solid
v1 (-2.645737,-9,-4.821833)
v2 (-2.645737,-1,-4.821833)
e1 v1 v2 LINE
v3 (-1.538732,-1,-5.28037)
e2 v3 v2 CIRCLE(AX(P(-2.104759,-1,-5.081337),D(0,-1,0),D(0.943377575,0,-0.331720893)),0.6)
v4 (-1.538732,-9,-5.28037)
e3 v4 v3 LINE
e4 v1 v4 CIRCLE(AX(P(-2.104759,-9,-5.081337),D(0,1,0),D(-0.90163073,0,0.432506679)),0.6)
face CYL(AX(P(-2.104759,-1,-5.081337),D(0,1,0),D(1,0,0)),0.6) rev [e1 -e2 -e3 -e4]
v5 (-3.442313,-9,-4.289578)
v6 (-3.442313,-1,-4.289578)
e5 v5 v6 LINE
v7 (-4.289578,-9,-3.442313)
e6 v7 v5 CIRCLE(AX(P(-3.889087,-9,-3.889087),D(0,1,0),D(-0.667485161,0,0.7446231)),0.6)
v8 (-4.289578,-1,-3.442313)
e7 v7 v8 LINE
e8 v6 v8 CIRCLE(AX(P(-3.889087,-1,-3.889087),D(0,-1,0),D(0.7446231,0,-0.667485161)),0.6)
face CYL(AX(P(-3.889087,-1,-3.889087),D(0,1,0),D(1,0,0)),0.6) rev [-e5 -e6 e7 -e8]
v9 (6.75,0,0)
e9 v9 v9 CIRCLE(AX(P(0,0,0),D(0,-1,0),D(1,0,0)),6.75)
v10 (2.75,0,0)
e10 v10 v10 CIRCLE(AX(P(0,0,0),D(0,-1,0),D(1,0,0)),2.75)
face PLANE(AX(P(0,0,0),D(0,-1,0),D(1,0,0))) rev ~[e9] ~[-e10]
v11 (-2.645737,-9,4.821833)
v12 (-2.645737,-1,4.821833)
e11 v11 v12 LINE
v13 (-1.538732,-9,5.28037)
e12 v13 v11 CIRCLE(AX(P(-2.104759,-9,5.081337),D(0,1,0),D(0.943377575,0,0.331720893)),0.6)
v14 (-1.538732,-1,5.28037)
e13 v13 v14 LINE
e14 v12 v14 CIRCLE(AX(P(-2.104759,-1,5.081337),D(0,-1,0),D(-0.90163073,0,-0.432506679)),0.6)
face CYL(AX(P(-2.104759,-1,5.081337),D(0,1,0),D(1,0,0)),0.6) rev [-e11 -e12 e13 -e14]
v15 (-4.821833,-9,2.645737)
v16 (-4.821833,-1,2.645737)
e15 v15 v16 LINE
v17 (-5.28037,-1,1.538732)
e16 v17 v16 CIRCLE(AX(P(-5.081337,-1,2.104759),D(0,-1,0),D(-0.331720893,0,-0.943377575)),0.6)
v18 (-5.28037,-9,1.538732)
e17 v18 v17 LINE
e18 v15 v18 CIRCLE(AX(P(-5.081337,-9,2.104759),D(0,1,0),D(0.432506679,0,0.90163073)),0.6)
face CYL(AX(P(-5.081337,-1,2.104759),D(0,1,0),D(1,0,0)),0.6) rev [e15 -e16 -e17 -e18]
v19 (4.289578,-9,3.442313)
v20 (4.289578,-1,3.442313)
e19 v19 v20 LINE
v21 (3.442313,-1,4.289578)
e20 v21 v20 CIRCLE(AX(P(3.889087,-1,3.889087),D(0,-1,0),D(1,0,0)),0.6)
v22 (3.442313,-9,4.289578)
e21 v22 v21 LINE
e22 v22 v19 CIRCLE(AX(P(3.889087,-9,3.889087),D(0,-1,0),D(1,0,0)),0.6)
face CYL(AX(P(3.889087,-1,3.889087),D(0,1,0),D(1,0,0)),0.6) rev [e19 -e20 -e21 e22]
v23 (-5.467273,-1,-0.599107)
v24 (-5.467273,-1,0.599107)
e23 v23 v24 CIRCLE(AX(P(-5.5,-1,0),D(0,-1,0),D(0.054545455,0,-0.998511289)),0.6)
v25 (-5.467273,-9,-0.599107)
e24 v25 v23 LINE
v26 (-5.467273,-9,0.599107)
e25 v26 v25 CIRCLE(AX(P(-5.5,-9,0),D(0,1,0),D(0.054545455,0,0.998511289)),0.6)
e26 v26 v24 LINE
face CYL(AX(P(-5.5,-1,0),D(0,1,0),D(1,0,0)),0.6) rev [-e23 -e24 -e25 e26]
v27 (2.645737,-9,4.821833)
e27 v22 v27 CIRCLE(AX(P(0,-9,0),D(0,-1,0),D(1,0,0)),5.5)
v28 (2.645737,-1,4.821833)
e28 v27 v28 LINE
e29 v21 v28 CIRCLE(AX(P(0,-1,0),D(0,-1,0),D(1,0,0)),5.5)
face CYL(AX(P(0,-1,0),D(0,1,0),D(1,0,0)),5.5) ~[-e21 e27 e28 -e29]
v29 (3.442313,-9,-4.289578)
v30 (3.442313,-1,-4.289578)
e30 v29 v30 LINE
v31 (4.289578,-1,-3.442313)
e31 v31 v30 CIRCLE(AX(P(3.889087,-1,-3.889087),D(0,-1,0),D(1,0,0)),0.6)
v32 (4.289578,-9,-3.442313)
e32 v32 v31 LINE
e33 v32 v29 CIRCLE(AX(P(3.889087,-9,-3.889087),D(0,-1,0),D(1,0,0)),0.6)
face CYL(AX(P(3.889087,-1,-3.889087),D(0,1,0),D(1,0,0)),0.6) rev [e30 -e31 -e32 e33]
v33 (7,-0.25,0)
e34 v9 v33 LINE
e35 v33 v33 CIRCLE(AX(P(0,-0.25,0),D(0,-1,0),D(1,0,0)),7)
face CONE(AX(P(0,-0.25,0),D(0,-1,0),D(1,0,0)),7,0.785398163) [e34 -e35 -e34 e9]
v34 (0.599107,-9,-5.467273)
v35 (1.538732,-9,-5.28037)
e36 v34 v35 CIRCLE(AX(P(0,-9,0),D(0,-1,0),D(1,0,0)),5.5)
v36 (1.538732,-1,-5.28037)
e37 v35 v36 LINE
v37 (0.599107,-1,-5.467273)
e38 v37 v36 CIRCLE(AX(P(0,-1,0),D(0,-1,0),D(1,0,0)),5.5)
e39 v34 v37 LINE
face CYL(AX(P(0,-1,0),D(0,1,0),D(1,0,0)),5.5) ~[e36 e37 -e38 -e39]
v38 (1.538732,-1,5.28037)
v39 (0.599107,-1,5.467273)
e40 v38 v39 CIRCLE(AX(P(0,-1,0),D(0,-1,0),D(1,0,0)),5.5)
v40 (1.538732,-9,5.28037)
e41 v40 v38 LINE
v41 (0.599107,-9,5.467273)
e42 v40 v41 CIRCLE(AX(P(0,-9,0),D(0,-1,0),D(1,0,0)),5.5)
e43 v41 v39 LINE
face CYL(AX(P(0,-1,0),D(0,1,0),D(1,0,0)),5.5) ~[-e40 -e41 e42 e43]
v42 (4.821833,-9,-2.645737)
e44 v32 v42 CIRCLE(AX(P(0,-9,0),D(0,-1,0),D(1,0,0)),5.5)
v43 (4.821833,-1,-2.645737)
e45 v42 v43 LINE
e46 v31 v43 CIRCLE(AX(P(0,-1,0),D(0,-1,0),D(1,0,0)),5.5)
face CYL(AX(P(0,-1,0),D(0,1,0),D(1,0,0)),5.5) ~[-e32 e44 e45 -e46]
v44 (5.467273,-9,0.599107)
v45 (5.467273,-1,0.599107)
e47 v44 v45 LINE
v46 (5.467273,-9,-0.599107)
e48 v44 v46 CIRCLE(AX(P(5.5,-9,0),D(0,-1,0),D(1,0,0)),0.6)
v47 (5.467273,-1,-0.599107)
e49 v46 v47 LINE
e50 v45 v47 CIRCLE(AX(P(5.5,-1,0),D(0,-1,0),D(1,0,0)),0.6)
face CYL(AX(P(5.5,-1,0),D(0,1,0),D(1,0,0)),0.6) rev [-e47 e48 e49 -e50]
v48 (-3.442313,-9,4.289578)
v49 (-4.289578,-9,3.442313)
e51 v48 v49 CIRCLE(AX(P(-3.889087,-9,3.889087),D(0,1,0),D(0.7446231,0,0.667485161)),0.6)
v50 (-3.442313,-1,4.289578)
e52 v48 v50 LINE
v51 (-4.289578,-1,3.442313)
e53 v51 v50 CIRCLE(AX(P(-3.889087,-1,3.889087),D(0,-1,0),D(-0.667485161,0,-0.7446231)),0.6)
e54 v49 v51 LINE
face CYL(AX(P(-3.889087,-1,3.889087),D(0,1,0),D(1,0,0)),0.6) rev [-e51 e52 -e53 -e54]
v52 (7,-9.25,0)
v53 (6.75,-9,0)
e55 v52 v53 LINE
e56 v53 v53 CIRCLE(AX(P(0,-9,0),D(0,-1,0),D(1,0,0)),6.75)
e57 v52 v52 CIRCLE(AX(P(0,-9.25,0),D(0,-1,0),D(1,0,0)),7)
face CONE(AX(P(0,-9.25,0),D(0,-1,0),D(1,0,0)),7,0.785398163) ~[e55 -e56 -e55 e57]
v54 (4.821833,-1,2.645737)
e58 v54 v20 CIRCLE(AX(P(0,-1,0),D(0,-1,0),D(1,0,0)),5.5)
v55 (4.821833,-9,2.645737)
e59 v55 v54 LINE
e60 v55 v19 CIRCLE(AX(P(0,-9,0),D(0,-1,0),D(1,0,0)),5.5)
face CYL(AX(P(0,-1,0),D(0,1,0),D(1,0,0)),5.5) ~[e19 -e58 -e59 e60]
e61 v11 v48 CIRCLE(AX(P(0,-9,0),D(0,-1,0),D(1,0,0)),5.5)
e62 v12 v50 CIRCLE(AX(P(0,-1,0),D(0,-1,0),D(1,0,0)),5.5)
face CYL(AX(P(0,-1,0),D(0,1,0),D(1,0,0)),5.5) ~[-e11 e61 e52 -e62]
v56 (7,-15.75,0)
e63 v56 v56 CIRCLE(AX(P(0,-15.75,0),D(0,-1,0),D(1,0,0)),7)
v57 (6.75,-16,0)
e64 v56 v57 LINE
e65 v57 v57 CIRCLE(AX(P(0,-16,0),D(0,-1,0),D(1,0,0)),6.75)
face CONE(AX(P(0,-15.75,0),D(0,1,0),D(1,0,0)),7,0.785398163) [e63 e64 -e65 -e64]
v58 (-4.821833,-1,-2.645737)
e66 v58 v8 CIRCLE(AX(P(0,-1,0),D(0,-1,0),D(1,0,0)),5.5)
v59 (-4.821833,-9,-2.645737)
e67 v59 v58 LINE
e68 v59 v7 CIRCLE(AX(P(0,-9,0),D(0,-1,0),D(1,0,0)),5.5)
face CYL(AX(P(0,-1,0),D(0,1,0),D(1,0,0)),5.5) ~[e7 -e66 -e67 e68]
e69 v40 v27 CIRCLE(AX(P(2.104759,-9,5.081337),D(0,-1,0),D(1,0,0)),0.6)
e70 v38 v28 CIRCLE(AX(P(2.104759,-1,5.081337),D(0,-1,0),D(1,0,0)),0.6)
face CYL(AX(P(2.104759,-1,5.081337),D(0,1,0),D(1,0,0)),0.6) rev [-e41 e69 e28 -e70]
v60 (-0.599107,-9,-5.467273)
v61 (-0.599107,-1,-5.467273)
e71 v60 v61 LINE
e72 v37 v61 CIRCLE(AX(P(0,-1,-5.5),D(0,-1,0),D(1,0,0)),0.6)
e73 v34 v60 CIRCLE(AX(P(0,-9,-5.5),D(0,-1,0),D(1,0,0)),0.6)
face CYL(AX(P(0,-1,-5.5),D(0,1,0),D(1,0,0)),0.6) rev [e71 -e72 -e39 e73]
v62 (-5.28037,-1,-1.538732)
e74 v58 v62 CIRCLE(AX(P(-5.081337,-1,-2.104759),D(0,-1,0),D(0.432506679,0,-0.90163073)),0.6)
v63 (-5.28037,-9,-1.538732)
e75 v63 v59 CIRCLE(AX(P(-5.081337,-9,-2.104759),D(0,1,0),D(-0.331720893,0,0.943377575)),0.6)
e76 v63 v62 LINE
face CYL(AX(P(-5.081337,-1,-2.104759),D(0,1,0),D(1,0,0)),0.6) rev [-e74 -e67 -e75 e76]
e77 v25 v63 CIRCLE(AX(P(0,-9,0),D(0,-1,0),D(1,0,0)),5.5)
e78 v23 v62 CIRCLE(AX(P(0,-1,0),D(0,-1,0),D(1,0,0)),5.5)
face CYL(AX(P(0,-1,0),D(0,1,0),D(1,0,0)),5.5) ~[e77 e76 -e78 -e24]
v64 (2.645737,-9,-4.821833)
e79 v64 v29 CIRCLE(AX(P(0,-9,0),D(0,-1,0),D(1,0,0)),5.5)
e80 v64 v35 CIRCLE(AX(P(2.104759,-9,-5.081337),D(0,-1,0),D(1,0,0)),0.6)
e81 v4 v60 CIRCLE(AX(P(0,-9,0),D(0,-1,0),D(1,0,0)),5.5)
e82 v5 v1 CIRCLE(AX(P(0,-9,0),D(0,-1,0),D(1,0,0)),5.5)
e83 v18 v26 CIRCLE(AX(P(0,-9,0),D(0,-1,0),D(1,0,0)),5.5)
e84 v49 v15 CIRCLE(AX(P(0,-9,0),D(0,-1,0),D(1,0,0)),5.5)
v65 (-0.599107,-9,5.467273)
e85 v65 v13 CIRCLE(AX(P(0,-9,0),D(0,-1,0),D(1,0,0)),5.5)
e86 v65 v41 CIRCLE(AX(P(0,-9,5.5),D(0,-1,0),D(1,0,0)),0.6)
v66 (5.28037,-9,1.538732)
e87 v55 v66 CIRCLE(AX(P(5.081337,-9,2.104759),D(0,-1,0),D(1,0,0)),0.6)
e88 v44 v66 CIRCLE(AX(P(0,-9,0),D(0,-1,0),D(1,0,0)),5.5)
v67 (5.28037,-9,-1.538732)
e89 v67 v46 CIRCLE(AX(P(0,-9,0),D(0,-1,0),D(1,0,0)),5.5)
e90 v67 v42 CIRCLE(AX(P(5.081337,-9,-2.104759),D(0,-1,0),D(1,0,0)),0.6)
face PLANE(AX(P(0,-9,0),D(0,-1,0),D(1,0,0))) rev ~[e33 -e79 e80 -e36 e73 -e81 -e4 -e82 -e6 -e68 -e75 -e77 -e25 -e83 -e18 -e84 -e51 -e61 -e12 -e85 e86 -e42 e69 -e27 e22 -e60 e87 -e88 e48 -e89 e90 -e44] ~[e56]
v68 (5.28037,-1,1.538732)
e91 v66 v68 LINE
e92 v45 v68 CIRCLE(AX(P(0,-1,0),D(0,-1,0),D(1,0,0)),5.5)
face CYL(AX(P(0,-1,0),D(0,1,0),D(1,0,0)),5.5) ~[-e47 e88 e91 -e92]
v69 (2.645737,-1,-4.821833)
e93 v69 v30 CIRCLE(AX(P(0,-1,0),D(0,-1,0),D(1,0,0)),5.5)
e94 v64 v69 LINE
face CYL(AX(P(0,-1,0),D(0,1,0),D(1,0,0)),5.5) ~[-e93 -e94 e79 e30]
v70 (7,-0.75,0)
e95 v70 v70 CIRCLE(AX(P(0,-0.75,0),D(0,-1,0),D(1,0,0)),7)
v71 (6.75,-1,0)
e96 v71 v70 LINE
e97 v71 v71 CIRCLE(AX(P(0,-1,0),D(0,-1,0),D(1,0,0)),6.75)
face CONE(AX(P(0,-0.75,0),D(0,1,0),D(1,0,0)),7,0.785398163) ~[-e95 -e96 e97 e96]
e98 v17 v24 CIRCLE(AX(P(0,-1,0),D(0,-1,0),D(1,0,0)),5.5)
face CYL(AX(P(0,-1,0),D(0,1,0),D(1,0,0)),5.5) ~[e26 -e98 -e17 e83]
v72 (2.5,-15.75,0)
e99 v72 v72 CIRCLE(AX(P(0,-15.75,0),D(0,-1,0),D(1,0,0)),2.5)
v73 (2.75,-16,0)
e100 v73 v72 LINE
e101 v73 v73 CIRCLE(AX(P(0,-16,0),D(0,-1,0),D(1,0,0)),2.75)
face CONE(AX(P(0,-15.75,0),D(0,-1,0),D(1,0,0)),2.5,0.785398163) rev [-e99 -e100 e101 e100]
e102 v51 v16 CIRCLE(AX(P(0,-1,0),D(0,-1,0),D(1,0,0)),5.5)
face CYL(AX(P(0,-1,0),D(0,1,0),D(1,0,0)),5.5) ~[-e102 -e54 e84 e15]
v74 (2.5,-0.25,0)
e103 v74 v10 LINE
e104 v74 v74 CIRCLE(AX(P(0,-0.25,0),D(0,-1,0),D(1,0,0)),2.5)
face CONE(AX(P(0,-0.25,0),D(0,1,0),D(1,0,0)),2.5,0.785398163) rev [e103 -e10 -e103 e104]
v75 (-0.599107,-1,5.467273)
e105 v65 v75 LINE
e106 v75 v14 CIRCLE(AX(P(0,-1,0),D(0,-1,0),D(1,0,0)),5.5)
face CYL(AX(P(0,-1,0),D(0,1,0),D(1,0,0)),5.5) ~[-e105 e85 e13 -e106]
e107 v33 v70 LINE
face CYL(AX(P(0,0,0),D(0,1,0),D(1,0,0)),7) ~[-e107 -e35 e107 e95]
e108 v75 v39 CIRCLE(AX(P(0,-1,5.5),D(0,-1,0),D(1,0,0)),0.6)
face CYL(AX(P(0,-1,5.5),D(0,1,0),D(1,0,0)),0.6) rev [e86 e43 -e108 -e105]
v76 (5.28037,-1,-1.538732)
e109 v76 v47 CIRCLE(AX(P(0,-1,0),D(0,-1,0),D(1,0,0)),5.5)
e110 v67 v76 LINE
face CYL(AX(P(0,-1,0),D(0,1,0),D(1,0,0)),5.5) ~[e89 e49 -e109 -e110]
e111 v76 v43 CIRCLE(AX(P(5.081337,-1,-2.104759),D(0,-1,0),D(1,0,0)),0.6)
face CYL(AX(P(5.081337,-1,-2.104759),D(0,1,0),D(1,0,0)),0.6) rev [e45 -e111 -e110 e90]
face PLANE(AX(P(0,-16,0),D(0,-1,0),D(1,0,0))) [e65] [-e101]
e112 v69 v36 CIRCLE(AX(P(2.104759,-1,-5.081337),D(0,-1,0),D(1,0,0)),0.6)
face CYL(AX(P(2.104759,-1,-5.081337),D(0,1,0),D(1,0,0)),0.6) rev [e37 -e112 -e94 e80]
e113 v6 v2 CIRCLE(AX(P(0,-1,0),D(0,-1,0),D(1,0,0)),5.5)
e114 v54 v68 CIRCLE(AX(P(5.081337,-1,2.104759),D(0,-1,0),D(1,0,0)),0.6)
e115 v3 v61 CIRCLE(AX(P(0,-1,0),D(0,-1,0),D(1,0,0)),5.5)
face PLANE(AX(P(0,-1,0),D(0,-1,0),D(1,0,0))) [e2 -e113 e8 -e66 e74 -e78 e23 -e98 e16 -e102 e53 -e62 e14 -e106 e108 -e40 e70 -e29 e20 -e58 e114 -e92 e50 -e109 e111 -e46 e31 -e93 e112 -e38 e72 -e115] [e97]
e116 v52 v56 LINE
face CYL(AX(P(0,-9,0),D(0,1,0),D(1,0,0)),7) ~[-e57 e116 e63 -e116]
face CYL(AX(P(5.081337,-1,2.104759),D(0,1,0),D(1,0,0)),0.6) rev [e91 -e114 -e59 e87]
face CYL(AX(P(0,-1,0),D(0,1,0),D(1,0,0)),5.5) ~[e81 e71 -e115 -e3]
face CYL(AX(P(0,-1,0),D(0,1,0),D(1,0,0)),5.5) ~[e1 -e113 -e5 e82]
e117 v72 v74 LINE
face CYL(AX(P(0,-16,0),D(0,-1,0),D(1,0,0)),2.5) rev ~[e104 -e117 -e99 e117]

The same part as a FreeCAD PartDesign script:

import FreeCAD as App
import Part
import Sketcher
from FreeCAD import Vector


def edges_at(feature, points):
    """Names of the edges that pass closest to the given points."""
    edges = feature.Shape.Edges
    near = lambda p: min(range(len(edges)), key=lambda i: edges[i].distToShape(Part.Vertex(*p))[0])
    return sorted({f"Edge{near(p) + 1}" for p in points})

doc = App.newDocument("Part")
params = doc.addObject("Spreadsheet::Sheet", "Params")
for row, (alias, value) in enumerate([
    ("sketch1_diameter", "14 mm"),
    ("pad1_length", "1 mm"),
    ("sketch2_diameter", "11 mm"),
    ("pad2_length", "8 mm"),
    ("sketch3_diameter", "14 mm"),
    ("pad3_length", "7 mm"),
    ("sketch4_diameter", "1.2 mm"),
    ("pocket1_length", "8 mm"),
    ("sketch5_diameter", "5 mm"),
    ("chamfer_size", "0.25 mm"),
], start=1):
    params.set(f"A{row}", alias)
    params.set(f"B{row}", "=" + value)
    params.setAlias(f"B{row}", alias)

body = doc.addObject("PartDesign::Body", "Body")

# Sketch on XZ plane
sketch1 = doc.addObject("Sketcher::SketchObject", "Sketch")
body.addObject(sketch1)
sketch1.AttachmentSupport = (doc.XZ_Plane, [""])
sketch1.MapMode = "FlatFace"
sketch1.addGeometry(Part.Circle(Vector(0, 0, 0), Vector(0, 0, 1), 7), False)
sketch1.addConstraint(Sketcher.Constraint("Coincident", 0, 3, -1, 1))
sketch1.addConstraint(Sketcher.Constraint("Diameter", 0, 14.0))
sketch1.setExpression("Constraints[1]", "Params.sketch1_diameter")
pad1 = doc.addObject("PartDesign::Pad", "Pad")
body.addObject(pad1)
pad1.Profile = sketch1
pad1.setExpression("Length", "Params.pad1_length")

# Sketch on XZ plane
sketch2 = doc.addObject("Sketcher::SketchObject", "Sketch001")
body.addObject(sketch2)
sketch2.AttachmentSupport = (doc.XZ_Plane, [""])
sketch2.MapMode = "FlatFace"
sketch2.AttachmentOffset = App.Placement(Vector(0, 0, 1), App.Rotation())
sketch2.addGeometry(Part.Circle(Vector(0, 0, 0), Vector(0, 0, 1), 6), False)
sketch2.addConstraint(Sketcher.Constraint("Coincident", 0, 3, -1, 1))
sketch2.addConstraint(Sketcher.Constraint("Diameter", 0, 11.0))
sketch2.setExpression("Constraints[1]", "Params.sketch2_diameter")
pad2 = doc.addObject("PartDesign::Pad", "Pad001")
body.addObject(pad2)
pad2.Profile = sketch2
pad2.setExpression("Length", "Params.pad2_length")

# Sketch on XZ plane
sketch3 = doc.addObject("Sketcher::SketchObject", "Sketch002")
body.addObject(sketch3)
sketch3.AttachmentSupport = (doc.XZ_Plane, [""])
sketch3.MapMode = "FlatFace"
sketch3.AttachmentOffset = App.Placement(Vector(0, 0, 9), App.Rotation())
sketch3.addGeometry(Part.Circle(Vector(0, 0, 0), Vector(0, 0, 1), 7), False)
sketch3.addConstraint(Sketcher.Constraint("Coincident", 0, 3, -1, 1))
sketch3.addConstraint(Sketcher.Constraint("Diameter", 0, 14.0))
sketch3.setExpression("Constraints[1]", "Params.sketch3_diameter")
pad3 = doc.addObject("PartDesign::Pad", "Pad002")
body.addObject(pad3)
pad3.Profile = sketch3
pad3.setExpression("Length", "Params.pad3_length")

# Sketch on XZ plane
sketch4 = doc.addObject("Sketcher::SketchObject", "Sketch003")
body.addObject(sketch4)
sketch4.AttachmentSupport = (doc.XZ_Plane, [""])
sketch4.MapMode = "FlatFace"
sketch4.AttachmentOffset = App.Placement(Vector(0, 0, 1), App.Rotation())
sketch4.addGeometry(Part.Circle(Vector(0, 5.5, 0), Vector(0, 0, 1), 0.6), False)
sketch4.addGeometry(Part.Circle(Vector(-2.1, 5.1, 0), Vector(0, 0, 1), 0.6), False)
sketch4.addGeometry(Part.Circle(Vector(-3.9, 3.9, 0), Vector(0, 0, 1), 0.6), False)
sketch4.addGeometry(Part.Circle(Vector(-5.1, 2.1, 0), Vector(0, 0, 1), 0.6), False)
sketch4.addGeometry(Part.Circle(Vector(-5.5, 0, 0), Vector(0, 0, 1), 0.6), False)
sketch4.addGeometry(Part.Circle(Vector(-5.1, -2.1, 0), Vector(0, 0, 1), 0.6), False)
sketch4.addGeometry(Part.Circle(Vector(-3.9, -3.9, 0), Vector(0, 0, 1), 0.6), False)
sketch4.addGeometry(Part.Circle(Vector(-2.1, -5.1, 0), Vector(0, 0, 1), 0.6), False)
sketch4.addGeometry(Part.Circle(Vector(0, -5.5, 0), Vector(0, 0, 1), 0.6), False)
sketch4.addGeometry(Part.Circle(Vector(2.1, -5.1, 0), Vector(0, 0, 1), 0.6), False)
sketch4.addGeometry(Part.Circle(Vector(3.9, -3.9, 0), Vector(0, 0, 1), 0.6), False)
sketch4.addGeometry(Part.Circle(Vector(5.1, -2.1, 0), Vector(0, 0, 1), 0.6), False)
sketch4.addGeometry(Part.Circle(Vector(5.5, 0, 0), Vector(0, 0, 1), 0.6), False)
sketch4.addGeometry(Part.Circle(Vector(5.1, 2.1, 0), Vector(0, 0, 1), 0.6), False)
sketch4.addGeometry(Part.Circle(Vector(3.9, 3.9, 0), Vector(0, 0, 1), 0.6), False)
sketch4.addGeometry(Part.Circle(Vector(2.1, 5.1, 0), Vector(0, 0, 1), 0.6), False)
sketch4.addConstraint(Sketcher.Constraint("Equal", 0, 1))
sketch4.addConstraint(Sketcher.Constraint("Equal", 1, 2))
sketch4.addConstraint(Sketcher.Constraint("Equal", 2, 3))
sketch4.addConstraint(Sketcher.Constraint("Equal", 3, 4))
sketch4.addConstraint(Sketcher.Constraint("Equal", 4, 5))
sketch4.addConstraint(Sketcher.Constraint("Equal", 5, 6))
sketch4.addConstraint(Sketcher.Constraint("Equal", 6, 7))
sketch4.addConstraint(Sketcher.Constraint("Equal", 7, 8))
sketch4.addConstraint(Sketcher.Constraint("Equal", 8, 9))
sketch4.addConstraint(Sketcher.Constraint("Equal", 9, 10))
sketch4.addConstraint(Sketcher.Constraint("Equal", 10, 11))
sketch4.addConstraint(Sketcher.Constraint("Equal", 11, 12))
sketch4.addConstraint(Sketcher.Constraint("Equal", 12, 13))
sketch4.addConstraint(Sketcher.Constraint("Equal", 13, 14))
sketch4.addConstraint(Sketcher.Constraint("Equal", 14, 15))
sketch4.addConstraint(Sketcher.Constraint("Symmetric", 0, 3, 8, 3, -1, 1))
sketch4.addConstraint(Sketcher.Constraint("Symmetric", 1, 3, 9, 3, -1, 1))
sketch4.addConstraint(Sketcher.Constraint("Symmetric", 2, 3, 10, 3, -1, 1))
sketch4.addConstraint(Sketcher.Constraint("Symmetric", 3, 3, 11, 3, -1, 1))
sketch4.addConstraint(Sketcher.Constraint("Symmetric", 4, 3, 12, 3, -1, 1))
sketch4.addConstraint(Sketcher.Constraint("Symmetric", 5, 3, 13, 3, -1, 1))
sketch4.addConstraint(Sketcher.Constraint("Symmetric", 6, 3, 14, 3, -1, 1))
sketch4.addConstraint(Sketcher.Constraint("Symmetric", 7, 3, 15, 3, -1, 1))
sketch4.addConstraint(Sketcher.Constraint("Symmetric", 7, 3, 9, 3, -2))
sketch4.addConstraint(Sketcher.Constraint("Symmetric", 6, 3, 10, 3, -2))
sketch4.addConstraint(Sketcher.Constraint("Symmetric", 5, 3, 11, 3, -2))
sketch4.addConstraint(Sketcher.Constraint("PointOnObject", 0, 3, -2))
sketch4.addConstraint(Sketcher.Constraint("PointOnObject", 4, 3, -1))
sketch4.addConstraint(Sketcher.Constraint("Diameter", 0, 1.2))
sketch4.addConstraint(Sketcher.Constraint("DistanceY", -1, 1, 0, 3, 5.5))
sketch4.addConstraint(Sketcher.Constraint("DistanceX", 4, 3, -1, 1, 5.5))
sketch4.addConstraint(Sketcher.Constraint("DistanceX", 1, 3, -1, 1, 2.104759))
sketch4.addConstraint(Sketcher.Constraint("DistanceY", -1, 1, 3, 3, 2.104759))
sketch4.addConstraint(Sketcher.Constraint("DistanceY", 2, 3, 1, 3, 1.19225))
sketch4.addConstraint(Sketcher.Constraint("DistanceX", 3, 3, 2, 3, 1.19225))
sketch4.addConstraint(Sketcher.Constraint("DistanceX", 3, 3, 1, 3, 2.976578))
sketch4.addConstraint(Sketcher.Constraint("DistanceY", 3, 3, 1, 3, 2.976578))
sketch4.setExpression("Constraints[28]", "Params.sketch4_diameter")
pocket1 = doc.addObject("PartDesign::Pocket", "Pocket")
body.addObject(pocket1)
pocket1.Profile = sketch4
pocket1.setExpression("Length", "Params.pocket1_length")
pocket1.Reversed = True

# Sketch on XZ plane
sketch5 = doc.addObject("Sketcher::SketchObject", "Sketch004")
body.addObject(sketch5)
sketch5.AttachmentSupport = (doc.XZ_Plane, [""])
sketch5.MapMode = "FlatFace"
sketch5.AttachmentOffset = App.Placement(Vector(0, 0, 16), App.Rotation())
sketch5.addGeometry(Part.Circle(Vector(0, 0, 0), Vector(0, 0, 1), 2.5), False)
sketch5.addConstraint(Sketcher.Constraint("Coincident", 0, 3, -1, 1))
sketch5.addConstraint(Sketcher.Constraint("Diameter", 0, 5.0))
sketch5.setExpression("Constraints[1]", "Params.sketch5_diameter")
pocket2 = doc.addObject("PartDesign::Pocket", "Pocket001")
body.addObject(pocket2)
pocket2.Profile = sketch5
pocket2.Type = "ThroughAll"
doc.recompute()

chamfer = doc.addObject("PartDesign::Chamfer", "Chamfer")
body.addObject(chamfer)
chamfer.Base = (pocket2, edges_at(pocket2, [
    (7, -12.5, 0),
    (-7, -9, 0),
    (-7, -16, 0),
    (7, -0.5, 0),
    (-7, 0, 0),
    (-7, -1, 0),
    (-2.5, -16, 0),
    (2.5, -8, 0),
    (-2.5, 0, 0),
]))
chamfer.setExpression("Size", "Params.chamfer_size")

doc.recompute()
